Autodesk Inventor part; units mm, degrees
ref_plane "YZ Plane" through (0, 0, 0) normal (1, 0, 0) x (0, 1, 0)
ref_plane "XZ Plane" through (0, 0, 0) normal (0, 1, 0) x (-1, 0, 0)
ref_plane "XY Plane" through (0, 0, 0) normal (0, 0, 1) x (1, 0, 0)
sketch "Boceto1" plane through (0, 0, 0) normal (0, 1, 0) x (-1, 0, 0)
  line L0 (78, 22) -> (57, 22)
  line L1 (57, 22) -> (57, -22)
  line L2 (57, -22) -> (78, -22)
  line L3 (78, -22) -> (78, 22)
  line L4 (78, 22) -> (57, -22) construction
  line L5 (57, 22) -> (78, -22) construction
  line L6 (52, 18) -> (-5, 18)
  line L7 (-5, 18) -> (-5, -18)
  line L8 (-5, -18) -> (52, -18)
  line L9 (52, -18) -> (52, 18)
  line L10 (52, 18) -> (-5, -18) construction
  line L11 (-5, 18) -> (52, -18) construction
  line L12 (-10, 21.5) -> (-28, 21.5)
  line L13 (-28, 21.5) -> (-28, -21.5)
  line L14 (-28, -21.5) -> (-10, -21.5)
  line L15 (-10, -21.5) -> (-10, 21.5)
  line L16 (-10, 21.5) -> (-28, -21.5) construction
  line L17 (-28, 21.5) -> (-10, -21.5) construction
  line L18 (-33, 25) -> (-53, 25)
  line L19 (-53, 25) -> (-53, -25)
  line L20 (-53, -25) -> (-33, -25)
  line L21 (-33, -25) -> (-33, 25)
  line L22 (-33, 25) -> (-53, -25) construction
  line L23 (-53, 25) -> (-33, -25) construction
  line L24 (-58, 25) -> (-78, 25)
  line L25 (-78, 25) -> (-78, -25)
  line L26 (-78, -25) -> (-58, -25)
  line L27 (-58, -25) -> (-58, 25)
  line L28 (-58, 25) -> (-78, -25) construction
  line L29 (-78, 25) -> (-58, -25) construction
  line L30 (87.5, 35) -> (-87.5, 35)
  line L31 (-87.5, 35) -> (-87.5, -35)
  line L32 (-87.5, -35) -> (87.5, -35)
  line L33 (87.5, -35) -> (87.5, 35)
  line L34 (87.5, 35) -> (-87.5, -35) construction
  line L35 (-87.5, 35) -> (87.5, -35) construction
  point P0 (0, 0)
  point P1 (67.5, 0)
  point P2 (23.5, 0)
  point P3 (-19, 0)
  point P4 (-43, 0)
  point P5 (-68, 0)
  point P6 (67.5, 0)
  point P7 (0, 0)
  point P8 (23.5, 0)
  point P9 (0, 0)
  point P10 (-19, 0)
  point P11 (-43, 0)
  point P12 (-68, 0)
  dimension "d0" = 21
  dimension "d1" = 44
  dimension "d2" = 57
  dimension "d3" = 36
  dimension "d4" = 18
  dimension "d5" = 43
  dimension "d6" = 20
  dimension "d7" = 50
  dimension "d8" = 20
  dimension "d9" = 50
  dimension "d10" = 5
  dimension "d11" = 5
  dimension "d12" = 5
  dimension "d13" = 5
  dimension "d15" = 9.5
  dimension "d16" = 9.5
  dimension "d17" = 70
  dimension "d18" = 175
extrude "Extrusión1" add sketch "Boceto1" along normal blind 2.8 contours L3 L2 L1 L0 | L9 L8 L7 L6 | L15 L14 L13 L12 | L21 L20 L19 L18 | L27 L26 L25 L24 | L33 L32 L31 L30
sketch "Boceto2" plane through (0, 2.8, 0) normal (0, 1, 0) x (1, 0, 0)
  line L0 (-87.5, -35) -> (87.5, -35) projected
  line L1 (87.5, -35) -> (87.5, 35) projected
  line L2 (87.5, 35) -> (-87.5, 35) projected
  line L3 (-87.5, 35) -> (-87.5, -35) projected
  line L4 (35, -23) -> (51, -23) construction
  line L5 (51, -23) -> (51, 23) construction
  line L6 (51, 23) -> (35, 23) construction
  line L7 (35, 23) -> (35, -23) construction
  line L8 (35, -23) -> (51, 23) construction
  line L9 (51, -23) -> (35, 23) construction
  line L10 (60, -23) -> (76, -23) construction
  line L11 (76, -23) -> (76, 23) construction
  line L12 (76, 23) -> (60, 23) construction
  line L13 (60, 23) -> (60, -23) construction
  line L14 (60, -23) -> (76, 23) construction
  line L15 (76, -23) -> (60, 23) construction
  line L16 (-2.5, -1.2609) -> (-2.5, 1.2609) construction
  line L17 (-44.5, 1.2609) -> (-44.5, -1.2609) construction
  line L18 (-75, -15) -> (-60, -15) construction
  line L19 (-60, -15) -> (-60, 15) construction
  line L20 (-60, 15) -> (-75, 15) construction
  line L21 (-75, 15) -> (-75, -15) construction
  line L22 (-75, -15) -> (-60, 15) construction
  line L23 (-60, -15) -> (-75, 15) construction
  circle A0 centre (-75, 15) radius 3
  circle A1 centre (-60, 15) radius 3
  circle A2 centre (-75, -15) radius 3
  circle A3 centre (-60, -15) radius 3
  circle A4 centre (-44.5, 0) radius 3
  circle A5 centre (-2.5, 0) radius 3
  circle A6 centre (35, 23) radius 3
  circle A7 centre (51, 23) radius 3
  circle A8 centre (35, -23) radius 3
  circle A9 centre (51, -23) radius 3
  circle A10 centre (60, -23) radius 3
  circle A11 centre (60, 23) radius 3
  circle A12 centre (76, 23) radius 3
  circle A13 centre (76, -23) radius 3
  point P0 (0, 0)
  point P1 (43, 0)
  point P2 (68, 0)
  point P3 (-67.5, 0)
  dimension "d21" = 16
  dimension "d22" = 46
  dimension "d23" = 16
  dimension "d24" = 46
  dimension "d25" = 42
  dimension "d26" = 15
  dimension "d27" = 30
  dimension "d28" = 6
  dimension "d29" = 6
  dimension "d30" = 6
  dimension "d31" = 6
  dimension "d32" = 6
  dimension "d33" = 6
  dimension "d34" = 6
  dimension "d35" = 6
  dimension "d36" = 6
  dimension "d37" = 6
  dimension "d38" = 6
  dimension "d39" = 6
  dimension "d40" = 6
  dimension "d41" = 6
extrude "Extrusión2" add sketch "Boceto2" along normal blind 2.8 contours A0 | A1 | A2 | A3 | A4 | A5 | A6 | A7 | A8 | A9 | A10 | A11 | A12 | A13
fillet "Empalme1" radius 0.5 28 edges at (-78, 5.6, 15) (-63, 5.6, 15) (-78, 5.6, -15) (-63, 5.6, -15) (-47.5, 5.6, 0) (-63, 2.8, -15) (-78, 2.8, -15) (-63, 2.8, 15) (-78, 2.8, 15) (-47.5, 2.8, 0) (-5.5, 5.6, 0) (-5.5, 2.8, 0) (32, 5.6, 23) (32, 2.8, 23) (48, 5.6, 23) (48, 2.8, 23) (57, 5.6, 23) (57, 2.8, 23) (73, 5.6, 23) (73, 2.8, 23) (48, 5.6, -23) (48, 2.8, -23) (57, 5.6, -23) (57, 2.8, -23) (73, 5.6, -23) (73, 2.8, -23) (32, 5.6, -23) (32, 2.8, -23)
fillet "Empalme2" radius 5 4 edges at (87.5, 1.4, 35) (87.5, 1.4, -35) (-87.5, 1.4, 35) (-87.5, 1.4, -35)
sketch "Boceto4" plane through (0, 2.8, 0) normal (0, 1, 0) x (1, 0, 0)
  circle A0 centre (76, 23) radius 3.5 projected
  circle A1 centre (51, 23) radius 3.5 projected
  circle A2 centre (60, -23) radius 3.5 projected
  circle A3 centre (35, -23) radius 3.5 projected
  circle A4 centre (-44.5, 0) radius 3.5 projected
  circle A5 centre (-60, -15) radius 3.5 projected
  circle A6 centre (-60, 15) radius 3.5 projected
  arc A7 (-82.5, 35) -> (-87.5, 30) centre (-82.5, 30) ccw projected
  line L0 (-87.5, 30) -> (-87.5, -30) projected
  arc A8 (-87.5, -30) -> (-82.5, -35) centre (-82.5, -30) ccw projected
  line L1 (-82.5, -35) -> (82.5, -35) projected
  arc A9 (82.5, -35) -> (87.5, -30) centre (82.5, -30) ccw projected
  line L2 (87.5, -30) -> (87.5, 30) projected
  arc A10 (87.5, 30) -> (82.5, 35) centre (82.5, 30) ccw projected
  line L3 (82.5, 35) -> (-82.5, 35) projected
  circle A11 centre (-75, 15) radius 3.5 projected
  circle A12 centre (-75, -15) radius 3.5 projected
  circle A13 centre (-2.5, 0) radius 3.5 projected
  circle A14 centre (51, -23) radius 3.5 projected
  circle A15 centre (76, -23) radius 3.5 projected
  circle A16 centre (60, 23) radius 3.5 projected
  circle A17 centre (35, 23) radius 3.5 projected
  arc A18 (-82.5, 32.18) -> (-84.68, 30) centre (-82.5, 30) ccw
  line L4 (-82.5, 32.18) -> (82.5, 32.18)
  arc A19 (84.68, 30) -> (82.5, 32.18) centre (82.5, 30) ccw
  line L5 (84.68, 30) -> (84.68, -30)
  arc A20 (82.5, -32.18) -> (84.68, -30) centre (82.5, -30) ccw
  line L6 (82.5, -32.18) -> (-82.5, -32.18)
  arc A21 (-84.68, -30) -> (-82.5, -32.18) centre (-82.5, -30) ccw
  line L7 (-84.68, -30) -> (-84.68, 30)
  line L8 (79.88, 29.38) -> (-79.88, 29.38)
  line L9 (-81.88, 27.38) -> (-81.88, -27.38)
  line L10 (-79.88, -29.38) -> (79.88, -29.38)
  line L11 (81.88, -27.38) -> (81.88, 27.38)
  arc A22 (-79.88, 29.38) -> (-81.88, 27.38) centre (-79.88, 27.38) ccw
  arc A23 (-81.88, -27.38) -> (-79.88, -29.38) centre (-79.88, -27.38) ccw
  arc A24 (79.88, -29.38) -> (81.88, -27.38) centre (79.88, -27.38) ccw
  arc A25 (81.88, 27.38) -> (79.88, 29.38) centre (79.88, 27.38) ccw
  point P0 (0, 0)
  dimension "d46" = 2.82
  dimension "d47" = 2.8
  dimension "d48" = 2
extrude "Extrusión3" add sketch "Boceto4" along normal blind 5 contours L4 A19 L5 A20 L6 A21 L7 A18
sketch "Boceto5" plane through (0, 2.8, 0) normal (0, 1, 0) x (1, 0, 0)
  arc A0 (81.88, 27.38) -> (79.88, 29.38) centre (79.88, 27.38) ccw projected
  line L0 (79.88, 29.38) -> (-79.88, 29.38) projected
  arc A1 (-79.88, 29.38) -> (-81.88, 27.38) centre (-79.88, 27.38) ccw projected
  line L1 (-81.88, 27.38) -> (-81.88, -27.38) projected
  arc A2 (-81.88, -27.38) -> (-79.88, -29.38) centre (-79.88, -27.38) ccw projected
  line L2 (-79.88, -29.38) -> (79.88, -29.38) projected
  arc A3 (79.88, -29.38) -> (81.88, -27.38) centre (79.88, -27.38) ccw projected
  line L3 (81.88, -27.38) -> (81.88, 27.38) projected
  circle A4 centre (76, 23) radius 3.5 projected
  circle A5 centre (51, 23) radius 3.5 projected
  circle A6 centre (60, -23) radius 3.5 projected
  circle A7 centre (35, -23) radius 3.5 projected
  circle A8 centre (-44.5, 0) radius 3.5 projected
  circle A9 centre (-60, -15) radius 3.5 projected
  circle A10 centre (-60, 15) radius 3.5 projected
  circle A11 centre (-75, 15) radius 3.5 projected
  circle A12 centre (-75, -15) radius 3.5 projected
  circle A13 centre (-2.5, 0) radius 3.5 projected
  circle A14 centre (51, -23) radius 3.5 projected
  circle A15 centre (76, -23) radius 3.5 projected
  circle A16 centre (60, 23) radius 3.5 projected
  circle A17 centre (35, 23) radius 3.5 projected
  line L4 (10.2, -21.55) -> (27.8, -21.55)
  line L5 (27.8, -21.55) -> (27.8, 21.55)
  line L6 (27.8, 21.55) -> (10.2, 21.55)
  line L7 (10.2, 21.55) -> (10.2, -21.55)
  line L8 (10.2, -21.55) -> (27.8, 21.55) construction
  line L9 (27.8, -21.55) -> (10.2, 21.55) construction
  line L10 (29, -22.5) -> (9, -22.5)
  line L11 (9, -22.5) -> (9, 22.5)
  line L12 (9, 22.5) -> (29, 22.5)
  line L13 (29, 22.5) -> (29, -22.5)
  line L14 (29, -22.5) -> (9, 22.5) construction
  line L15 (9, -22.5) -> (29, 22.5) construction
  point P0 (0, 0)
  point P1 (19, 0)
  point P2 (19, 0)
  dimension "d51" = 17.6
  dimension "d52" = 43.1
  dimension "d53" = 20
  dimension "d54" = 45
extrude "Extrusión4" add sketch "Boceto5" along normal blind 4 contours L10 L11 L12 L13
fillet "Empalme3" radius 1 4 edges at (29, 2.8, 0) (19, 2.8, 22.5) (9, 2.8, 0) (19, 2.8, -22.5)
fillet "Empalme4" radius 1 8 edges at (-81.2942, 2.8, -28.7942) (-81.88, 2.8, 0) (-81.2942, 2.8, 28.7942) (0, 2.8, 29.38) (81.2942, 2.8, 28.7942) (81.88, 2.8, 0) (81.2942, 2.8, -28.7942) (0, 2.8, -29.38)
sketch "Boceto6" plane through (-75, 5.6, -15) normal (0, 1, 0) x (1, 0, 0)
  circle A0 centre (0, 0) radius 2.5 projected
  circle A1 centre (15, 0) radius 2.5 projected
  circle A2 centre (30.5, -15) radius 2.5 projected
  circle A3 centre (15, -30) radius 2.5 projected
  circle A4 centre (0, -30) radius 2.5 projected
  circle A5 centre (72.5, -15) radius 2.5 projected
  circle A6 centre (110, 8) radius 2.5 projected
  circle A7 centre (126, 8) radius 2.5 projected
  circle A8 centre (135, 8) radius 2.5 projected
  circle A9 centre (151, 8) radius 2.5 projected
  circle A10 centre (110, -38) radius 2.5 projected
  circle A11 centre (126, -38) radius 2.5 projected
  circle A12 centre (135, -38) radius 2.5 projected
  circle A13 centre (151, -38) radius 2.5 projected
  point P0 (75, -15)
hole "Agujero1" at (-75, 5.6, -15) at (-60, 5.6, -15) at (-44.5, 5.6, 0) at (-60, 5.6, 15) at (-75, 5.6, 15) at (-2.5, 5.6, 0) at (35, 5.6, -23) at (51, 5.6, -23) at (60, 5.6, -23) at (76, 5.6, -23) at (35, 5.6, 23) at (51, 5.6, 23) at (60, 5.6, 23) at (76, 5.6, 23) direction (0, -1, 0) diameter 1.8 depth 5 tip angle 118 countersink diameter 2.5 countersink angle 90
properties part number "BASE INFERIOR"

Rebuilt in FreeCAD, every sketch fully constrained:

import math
import FreeCAD as App
import Part
import Sketcher


def edges_at(feature, points):
    """Names of the edges that pass closest to the given points."""
    edges = feature.Shape.Edges
    near = lambda p: min(range(len(edges)), key=lambda i: edges[i].distToShape(Part.Vertex(*p))[0])
    return sorted({f"Edge{near(p) + 1}" for p in points})

doc = App.newDocument("Part")
body = doc.addObject("PartDesign::Body", "Body")

sketch1 = doc.addObject("Sketcher::SketchObject", "Sketch")
body.addObject(sketch1)
sketch1.AttachmentSupport = (doc.XZ_Plane, [""])
sketch1.MapMode = "FlatFace"
sketch1.addGeometry([
    Part.LineSegment(App.Vector(-88, -35, 0), App.Vector(-88, 35, 0)),
    Part.LineSegment(App.Vector(-88, 35, 0), App.Vector(88, 35, 0)),
    Part.LineSegment(App.Vector(88, 35, 0), App.Vector(88, -35, 0)),
    Part.LineSegment(App.Vector(88, -35, 0), App.Vector(-88, -35, 0)),
], False)
sketch1.addConstraint([
    Sketcher.Constraint("Coincident", 0, 2, 1, 1),
    Sketcher.Constraint("Coincident", 1, 2, 2, 1),
    Sketcher.Constraint("Coincident", 2, 2, 3, 1),
    Sketcher.Constraint("Coincident", 3, 2, 0, 1),
    Sketcher.Constraint("Vertical", 0),
    Sketcher.Constraint("Horizontal", 1),
    Sketcher.Constraint("Vertical", 2),
    Sketcher.Constraint("Horizontal", 3),
    Sketcher.Constraint("Symmetric", 0, 2, 2, 2, -1, 1),
    Sketcher.Constraint("DistanceX", 1, 1, 1, 2, 175.0),
    Sketcher.Constraint("DistanceY", 0, 1, 0, 2, 70.0),
])
pad1 = doc.addObject("PartDesign::Pad", "Pad")
body.addObject(pad1)
pad1.Profile = sketch1
pad1.Length = 2.8
pad1.Reversed = True

sketch2 = doc.addObject("Sketcher::SketchObject", "Sketch001")
body.addObject(sketch2)
sketch2.AttachmentSupport = (doc.XZ_Plane, [""])
sketch2.MapMode = "FlatFace"
sketch2.AttachmentOffset = App.Placement(App.Vector(0, 0, -2.8), App.Rotation())
sketch2.addGeometry([
    Part.Circle(App.Vector(-75, -15, 0), App.Vector(0, 0, 1), 3),
    Part.Circle(App.Vector(-60, -15, 0), App.Vector(0, 0, 1), 3),
    Part.Circle(App.Vector(-75, 15, 0), App.Vector(0, 0, 1), 3),
    Part.Circle(App.Vector(-60, 15, 0), App.Vector(0, 0, 1), 3),
    Part.Circle(App.Vector(-44.5, 0, 0), App.Vector(0, 0, 1), 3),
    Part.Circle(App.Vector(-2.5, 0, 0), App.Vector(0, 0, 1), 3),
    Part.Circle(App.Vector(35, -23, 0), App.Vector(0, 0, 1), 3),
    Part.Circle(App.Vector(51, -23, 0), App.Vector(0, 0, 1), 3),
    Part.Circle(App.Vector(35, 23, 0), App.Vector(0, 0, 1), 3),
    Part.Circle(App.Vector(51, 23, 0), App.Vector(0, 0, 1), 3),
    Part.Circle(App.Vector(60, 23, 0), App.Vector(0, 0, 1), 3),
    Part.Circle(App.Vector(60, -23, 0), App.Vector(0, 0, 1), 3),
    Part.Circle(App.Vector(76, -23, 0), App.Vector(0, 0, 1), 3),
    Part.Circle(App.Vector(76, 23, 0), App.Vector(0, 0, 1), 3),
], False)
sketch2.addConstraint([
    Sketcher.Constraint("Equal", 0, 1),
    Sketcher.Constraint("Equal", 1, 2),
    Sketcher.Constraint("Equal", 2, 3),
    Sketcher.Constraint("Equal", 3, 4),
    Sketcher.Constraint("Equal", 4, 5),
    Sketcher.Constraint("Equal", 5, 6),
    Sketcher.Constraint("Equal", 6, 7),
    Sketcher.Constraint("Equal", 7, 8),
    Sketcher.Constraint("Equal", 8, 9),
    Sketcher.Constraint("Equal", 9, 10),
    Sketcher.Constraint("Equal", 10, 11),
    Sketcher.Constraint("Equal", 11, 12),
    Sketcher.Constraint("Equal", 12, 13),
    Sketcher.Constraint("Symmetric", 0, 3, 2, 3, -1),
    Sketcher.Constraint("Symmetric", 1, 3, 3, 3, -1),
    Sketcher.Constraint("Symmetric", 6, 3, 8, 3, -1),
    Sketcher.Constraint("Symmetric", 7, 3, 9, 3, -1),
    Sketcher.Constraint("Symmetric", 10, 3, 11, 3, -1),
    Sketcher.Constraint("Symmetric", 12, 3, 13, 3, -1),
    Sketcher.Constraint("PointOnObject", 4, 3, -1),
    Sketcher.Constraint("PointOnObject", 5, 3, -1),
    Sketcher.Constraint("Horizontal", 0, 3, 1, 3),
    Sketcher.Constraint("Horizontal", 6, 3, 7, 3),
    Sketcher.Constraint("Horizontal", 9, 3, 10, 3),
    Sketcher.Constraint("Horizontal", 11, 3, 12, 3),
    Sketcher.Constraint("Diameter", 0, 6.0),
    Sketcher.Constraint("DistanceY", 0, 3, -1, 1, 15.0),
    Sketcher.Constraint("DistanceX", 0, 3, 1, 3, 15.0),
    Sketcher.Constraint("DistanceX", 4, 3, 5, 3, 42.0),
    Sketcher.Constraint("DistanceX", 6, 3, 7, 3, 16.0),
    Sketcher.Constraint("DistanceY", 6, 3, 8, 3, 46.0),
    Sketcher.Constraint("DistanceX", 11, 3, 12, 3, 16.0),
    Sketcher.Constraint("DistanceX", 0, 3, -1, 1, 75.0),
    Sketcher.Constraint("DistanceX", -1, 1, 6, 3, 35.0),
    Sketcher.Constraint("DistanceX", -1, 1, 10, 3, 60.0),
    Sketcher.Constraint("DistanceX", 4, 3, -1, 1, 44.5),
])
pad2 = doc.addObject("PartDesign::Pad", "Pad001")
body.addObject(pad2)
pad2.Profile = sketch2
pad2.Length = 2.8
pad2.Reversed = True
doc.recompute()

fillet = doc.addObject("PartDesign::Fillet", "Fillet")
body.addObject(fillet)
fillet.Base = (pad2, edges_at(pad2, [
    (-78, 5.6, 15),
    (-63, 5.6, 15),
    (-78, 5.6, -15),
    (-63, 5.6, -15),
    (-47.5, 5.6, 0),
    (-63, 2.8, -15),
    (-78, 2.8, -15),
    (-63, 2.8, 15),
    (-78, 2.8, 15),
    (-47.5, 2.8, 0),
    (-5.5, 5.6, 0),
    (-5.5, 2.8, 0),
    (32, 5.6, 23),
    (32, 2.8, 23),
    (48, 5.6, 23),
    (48, 2.8, 23),
    (57, 5.6, 23),
    (57, 2.8, 23),
    (73, 5.6, 23),
    (73, 2.8, 23),
    (48, 5.6, -23),
    (48, 2.8, -23),
    (57, 5.6, -23),
    (57, 2.8, -23),
    (73, 5.6, -23),
    (73, 2.8, -23),
    (32, 5.6, -23),
    (32, 2.8, -23),
]))
fillet.Radius = 0.5
doc.recompute()

fillet2 = doc.addObject("PartDesign::Fillet", "Fillet001")
body.addObject(fillet2)
fillet2.Base = (fillet, edges_at(fillet, [
    (87.5, 1.4, 35),
    (87.5, 1.4, -35),
    (-87.5, 1.4, 35),
    (-87.5, 1.4, -35),
]))
fillet2.Radius = 5

sketch3 = doc.addObject("Sketcher::SketchObject", "Sketch002")
body.addObject(sketch3)
sketch3.AttachmentSupport = (doc.XZ_Plane, [""])
sketch3.MapMode = "FlatFace"
sketch3.AttachmentOffset = App.Placement(App.Vector(0, 0, -2.8), App.Rotation())
sketch3.addGeometry([
    Part.LineSegment(App.Vector(82.5, -32.2, 0), App.Vector(-82.5, -32.2, 0)),
    Part.ArcOfCircle(Part.Circle(App.Vector(-82.5, -30, 0), App.Vector(0, 0, 1), 2.2), math.radians(180), math.radians(270)),
    Part.LineSegment(App.Vector(-84.7, -30, 0), App.Vector(-84.7, 30, 0)),
    Part.ArcOfCircle(Part.Circle(App.Vector(-82.5, 30, 0), App.Vector(0, 0, 1), 2.2), math.radians(90), math.radians(180)),
    Part.LineSegment(App.Vector(-82.5, 32.2, 0), App.Vector(82.5, 32.2, 0)),
    Part.ArcOfCircle(Part.Circle(App.Vector(82.5, 30, 0), App.Vector(0, 0, 1), 2.2), math.radians(0), math.radians(90)),
    Part.LineSegment(App.Vector(84.7, 30, 0), App.Vector(84.7, -30, 0)),
    Part.ArcOfCircle(Part.Circle(App.Vector(82.5, -30, 0), App.Vector(0, 0, 1), 2.2), math.radians(-90), math.radians(0)),
    Part.LineSegment(App.Vector(-79.9, -29.4, 0), App.Vector(79.9, -29.4, 0)),
    Part.ArcOfCircle(Part.Circle(App.Vector(79.9, -27.4, 0), App.Vector(0, 0, 1), 2), math.radians(-90), math.radians(0)),
    Part.LineSegment(App.Vector(81.9, -27.4, 0), App.Vector(81.9, 27.4, 0)),
    Part.ArcOfCircle(Part.Circle(App.Vector(79.9, 27.4, 0), App.Vector(0, 0, 1), 2), math.radians(0), math.radians(90)),
    Part.LineSegment(App.Vector(79.9, 29.4, 0), App.Vector(-79.9, 29.4, 0)),
    Part.ArcOfCircle(Part.Circle(App.Vector(-79.9, 27.4, 0), App.Vector(0, 0, 1), 2), math.radians(90), math.radians(180)),
    Part.LineSegment(App.Vector(-81.9, 27.4, 0), App.Vector(-81.9, -27.4, 0)),
    Part.ArcOfCircle(Part.Circle(App.Vector(-79.9, -27.4, 0), App.Vector(0, 0, 1), 2), math.radians(180), math.radians(270)),
], False)
sketch3.addConstraint([
    Sketcher.Constraint("Tangent", 0, 2, 1, 2),
    Sketcher.Constraint("Tangent", 1, 1, 2, 1),
    Sketcher.Constraint("Tangent", 2, 2, 3, 2),
    Sketcher.Constraint("Tangent", 3, 1, 4, 1),
    Sketcher.Constraint("Tangent", 4, 2, 5, 2),
    Sketcher.Constraint("Tangent", 5, 1, 6, 1),
    Sketcher.Constraint("Tangent", 6, 2, 7, 2),
    Sketcher.Constraint("Tangent", 7, 1, 0, 1),
    Sketcher.Constraint("Tangent", 8, 2, 9, 1),
    Sketcher.Constraint("Tangent", 9, 2, 10, 1),
    Sketcher.Constraint("Tangent", 10, 2, 11, 1),
    Sketcher.Constraint("Tangent", 11, 2, 12, 1),
    Sketcher.Constraint("Tangent", 12, 2, 13, 1),
    Sketcher.Constraint("Tangent", 13, 2, 14, 1),
    Sketcher.Constraint("Tangent", 14, 2, 15, 1),
    Sketcher.Constraint("Tangent", 15, 2, 8, 1),
    Sketcher.Constraint("Horizontal", 0),
    Sketcher.Constraint("Vertical", 2),
    Sketcher.Constraint("Horizontal", 4),
    Sketcher.Constraint("Vertical", 6),
    Sketcher.Constraint("Horizontal", 8),
    Sketcher.Constraint("Vertical", 10),
    Sketcher.Constraint("Horizontal", 12),
    Sketcher.Constraint("Vertical", 14),
    Sketcher.Constraint("Equal", 1, 3),
    Sketcher.Constraint("Equal", 3, 5),
    Sketcher.Constraint("Equal", 5, 7),
    Sketcher.Constraint("Equal", 9, 11),
    Sketcher.Constraint("Equal", 11, 13),
    Sketcher.Constraint("Equal", 13, 15),
    Sketcher.Constraint("Symmetric", 1, 3, 5, 3, -1, 1),
    Sketcher.Constraint("Symmetric", 9, 3, 13, 3, -1, 1),
    Sketcher.Constraint("Radius", 9, 2.0),
    Sketcher.Constraint("DistanceY", 7, 1, 8, 2, 2.8),
    Sketcher.Constraint("DistanceX", 9, 2, 6, 2, 2.8),
    Sketcher.Constraint("DistanceX", 0, 2, 0, 1, 165.0),
    Sketcher.Constraint("DistanceY", 2, 1, 2, 2, 60.0),
    Sketcher.Constraint("Radius", 1, 2.18),
])
pad3 = doc.addObject("PartDesign::Pad", "Pad002")
body.addObject(pad3)
pad3.Profile = sketch3
pad3.Length = 5
pad3.Reversed = True

sketch4 = doc.addObject("Sketcher::SketchObject", "Sketch003")
body.addObject(sketch4)
sketch4.AttachmentSupport = (doc.XZ_Plane, [""])
sketch4.MapMode = "FlatFace"
sketch4.AttachmentOffset = App.Placement(App.Vector(0, 0, -2.8), App.Rotation())
sketch4.addGeometry([
    Part.LineSegment(App.Vector(9, 22, 0), App.Vector(29, 22, 0)),
    Part.LineSegment(App.Vector(29, 22, 0), App.Vector(29, -22, 0)),
    Part.LineSegment(App.Vector(29, -22, 0), App.Vector(9, -22, 0)),
    Part.LineSegment(App.Vector(9, -22, 0), App.Vector(9, 22, 0)),
    Part.LineSegment(App.Vector(28, 22, 0), App.Vector(10, 22, 0)),
    Part.LineSegment(App.Vector(10, 22, 0), App.Vector(10, -22, 0)),
    Part.LineSegment(App.Vector(10, -22, 0), App.Vector(28, -22, 0)),
    Part.LineSegment(App.Vector(28, -22, 0), App.Vector(28, 22, 0)),
], False)
sketch4.addConstraint([
    Sketcher.Constraint("Coincident", 0, 2, 1, 1),
    Sketcher.Constraint("Coincident", 1, 2, 2, 1),
    Sketcher.Constraint("Coincident", 2, 2, 3, 1),
    Sketcher.Constraint("Coincident", 3, 2, 0, 1),
    Sketcher.Constraint("Coincident", 4, 2, 5, 1),
    Sketcher.Constraint("Coincident", 5, 2, 6, 1),
    Sketcher.Constraint("Coincident", 6, 2, 7, 1),
    Sketcher.Constraint("Coincident", 7, 2, 4, 1),
    Sketcher.Constraint("Horizontal", 0),
    Sketcher.Constraint("Vertical", 1),
    Sketcher.Constraint("Horizontal", 2),
    Sketcher.Constraint("Vertical", 3),
    Sketcher.Constraint("Horizontal", 4),
    Sketcher.Constraint("Vertical", 5),
    Sketcher.Constraint("Horizontal", 6),
    Sketcher.Constraint("Vertical", 7),
    Sketcher.Constraint("DistanceX", 0, 1, 0, 2, 20.0),
    Sketcher.Constraint("DistanceY", 1, 2, 1, 1, 45.0),
    Sketcher.Constraint("DistanceX", 4, 2, 4, 1, 17.6),
    Sketcher.Constraint("DistanceY", 5, 2, 5, 1, 43.1),
    Sketcher.Constraint("DistanceX", -1, 1, 0, 2, 29.0),
    Sketcher.Constraint("DistanceY", -1, 1, 0, 2, 22.5),
    Sketcher.Constraint("DistanceX", -1, 1, 4, 2, 10.2),
    Sketcher.Constraint("DistanceY", -1, 1, 4, 2, 21.55),
])
pad4 = doc.addObject("PartDesign::Pad", "Pad003")
body.addObject(pad4)
pad4.Profile = sketch4
pad4.Length = 4
pad4.Reversed = True
doc.recompute()

fillet3 = doc.addObject("PartDesign::Fillet", "Fillet002")
body.addObject(fillet3)
fillet3.Base = (pad4, edges_at(pad4, [
    (29, 2.8, 0),
    (19, 2.8, 22.5),
    (9, 2.8, 0),
    (19, 2.8, -22.5),
]))
fillet3.Radius = 1
doc.recompute()

fillet4 = doc.addObject("PartDesign::Fillet", "Fillet003")
body.addObject(fillet4)
fillet4.Base = (fillet3, edges_at(fillet3, [
    (-81.294, 2.8, -28.794),
    (-81.88, 2.8, 0),
    (-81.294, 2.8, 28.794),
    (0, 2.8, 29.38),
    (81.294, 2.8, 28.794),
    (81.88, 2.8, 0),
    (81.294, 2.8, -28.794),
    (0, 2.8, -29.38),
]))
fillet4.Radius = 1

sketch5 = doc.addObject("Sketcher::SketchObject", "Sketch004")
body.addObject(sketch5)
sketch5.AttachmentSupport = (doc.XZ_Plane, [""])
sketch5.MapMode = "FlatFace"
sketch5.AttachmentOffset = App.Placement(App.Vector(0, 0, -5.6), App.Rotation())
sketch5.addGeometry([
    Part.Circle(App.Vector(-75, -15, 0), App.Vector(0, 0, 1), 0.9),
    Part.Circle(App.Vector(-60, -15, 0), App.Vector(0, 0, 1), 0.9),
    Part.Circle(App.Vector(-44.5, 0, 0), App.Vector(0, 0, 1), 0.9),
    Part.Circle(App.Vector(-60, 15, 0), App.Vector(0, 0, 1), 0.9),
    Part.Circle(App.Vector(-75, 15, 0), App.Vector(0, 0, 1), 0.9),
    Part.Circle(App.Vector(-2.5, 0, 0), App.Vector(0, 0, 1), 0.9),
    Part.Circle(App.Vector(35, -23, 0), App.Vector(0, 0, 1), 0.9),
    Part.Circle(App.Vector(51, -23, 0), App.Vector(0, 0, 1), 0.9),
    Part.Circle(App.Vector(60, -23, 0), App.Vector(0, 0, 1), 0.9),
    Part.Circle(App.Vector(76, -23, 0), App.Vector(0, 0, 1), 0.9),
    Part.Circle(App.Vector(35, 23, 0), App.Vector(0, 0, 1), 0.9),
    Part.Circle(App.Vector(51, 23, 0), App.Vector(0, 0, 1), 0.9),
    Part.Circle(App.Vector(60, 23, 0), App.Vector(0, 0, 1), 0.9),
    Part.Circle(App.Vector(76, 23, 0), App.Vector(0, 0, 1), 0.9),
], False)
sketch5.addConstraint([
    Sketcher.Constraint("Equal", 0, 1),
    Sketcher.Constraint("Equal", 1, 2),
    Sketcher.Constraint("Equal", 2, 3),
    Sketcher.Constraint("Equal", 3, 4),
    Sketcher.Constraint("Equal", 4, 5),
    Sketcher.Constraint("Equal", 5, 6),
    Sketcher.Constraint("Equal", 6, 7),
    Sketcher.Constraint("Equal", 7, 8),
    Sketcher.Constraint("Equal", 8, 9),
    Sketcher.Constraint("Equal", 9, 10),
    Sketcher.Constraint("Equal", 10, 11),
    Sketcher.Constraint("Equal", 11, 12),
    Sketcher.Constraint("Equal", 12, 13),
    Sketcher.Constraint("Symmetric", 1, 3, 3, 3, -1),
    Sketcher.Constraint("Symmetric", 0, 3, 4, 3, -1),
    Sketcher.Constraint("Symmetric", 6, 3, 10, 3, -1),
    Sketcher.Constraint("Symmetric", 7, 3, 11, 3, -1),
    Sketcher.Constraint("Symmetric", 8, 3, 12, 3, -1),
    Sketcher.Constraint("Symmetric", 9, 3, 13, 3, -1),
    Sketcher.Constraint("PointOnObject", 2, 3, -1),
    Sketcher.Constraint("PointOnObject", 5, 3, -1),
    Sketcher.Constraint("Horizontal", 0, 3, 1, 3),
    Sketcher.Constraint("Horizontal", 6, 3, 7, 3),
    Sketcher.Constraint("Horizontal", 7, 3, 8, 3),
    Sketcher.Constraint("Horizontal", 8, 3, 9, 3),
    Sketcher.Constraint("Diameter", 0, 1.8),
    Sketcher.Constraint("DistanceX", 0, 3, -1, 1, 75.0),
    Sketcher.Constraint("DistanceY", 0, 3, -1, 1, 15.0),
    Sketcher.Constraint("DistanceX", 1, 3, -1, 1, 60.0),
    Sketcher.Constraint("DistanceX", -1, 1, 6, 3, 35.0),
    Sketcher.Constraint("DistanceY", 6, 3, -1, 1, 23.0),
    Sketcher.Constraint("DistanceX", -1, 1, 7, 3, 51.0),
    Sketcher.Constraint("DistanceX", -1, 1, 8, 3, 60.0),
    Sketcher.Constraint("DistanceX", -1, 1, 9, 3, 76.0),
    Sketcher.Constraint("DistanceX", 2, 3, 5, 3, 42.0),
    Sketcher.Constraint("DistanceX", 2, 3, -1, 1, 44.5),
])
doc.recompute()
hole = doc.addObject("PartDesign::Hole", "Hole")
body.addObject(hole)
hole.Profile = sketch5
hole.ThreadType = "None"
hole.Diameter = 1.8
hole.DepthType = "Dimension"
hole.Depth = 5
hole.DrillPoint = "Angled"
hole.DrillPointAngle = 118
hole.HoleCutType = "Countersink"
hole.HoleCutDiameter = 2.5
hole.HoleCutCountersinkAngle = 90
hole.Reversed = True

doc.recompute()
